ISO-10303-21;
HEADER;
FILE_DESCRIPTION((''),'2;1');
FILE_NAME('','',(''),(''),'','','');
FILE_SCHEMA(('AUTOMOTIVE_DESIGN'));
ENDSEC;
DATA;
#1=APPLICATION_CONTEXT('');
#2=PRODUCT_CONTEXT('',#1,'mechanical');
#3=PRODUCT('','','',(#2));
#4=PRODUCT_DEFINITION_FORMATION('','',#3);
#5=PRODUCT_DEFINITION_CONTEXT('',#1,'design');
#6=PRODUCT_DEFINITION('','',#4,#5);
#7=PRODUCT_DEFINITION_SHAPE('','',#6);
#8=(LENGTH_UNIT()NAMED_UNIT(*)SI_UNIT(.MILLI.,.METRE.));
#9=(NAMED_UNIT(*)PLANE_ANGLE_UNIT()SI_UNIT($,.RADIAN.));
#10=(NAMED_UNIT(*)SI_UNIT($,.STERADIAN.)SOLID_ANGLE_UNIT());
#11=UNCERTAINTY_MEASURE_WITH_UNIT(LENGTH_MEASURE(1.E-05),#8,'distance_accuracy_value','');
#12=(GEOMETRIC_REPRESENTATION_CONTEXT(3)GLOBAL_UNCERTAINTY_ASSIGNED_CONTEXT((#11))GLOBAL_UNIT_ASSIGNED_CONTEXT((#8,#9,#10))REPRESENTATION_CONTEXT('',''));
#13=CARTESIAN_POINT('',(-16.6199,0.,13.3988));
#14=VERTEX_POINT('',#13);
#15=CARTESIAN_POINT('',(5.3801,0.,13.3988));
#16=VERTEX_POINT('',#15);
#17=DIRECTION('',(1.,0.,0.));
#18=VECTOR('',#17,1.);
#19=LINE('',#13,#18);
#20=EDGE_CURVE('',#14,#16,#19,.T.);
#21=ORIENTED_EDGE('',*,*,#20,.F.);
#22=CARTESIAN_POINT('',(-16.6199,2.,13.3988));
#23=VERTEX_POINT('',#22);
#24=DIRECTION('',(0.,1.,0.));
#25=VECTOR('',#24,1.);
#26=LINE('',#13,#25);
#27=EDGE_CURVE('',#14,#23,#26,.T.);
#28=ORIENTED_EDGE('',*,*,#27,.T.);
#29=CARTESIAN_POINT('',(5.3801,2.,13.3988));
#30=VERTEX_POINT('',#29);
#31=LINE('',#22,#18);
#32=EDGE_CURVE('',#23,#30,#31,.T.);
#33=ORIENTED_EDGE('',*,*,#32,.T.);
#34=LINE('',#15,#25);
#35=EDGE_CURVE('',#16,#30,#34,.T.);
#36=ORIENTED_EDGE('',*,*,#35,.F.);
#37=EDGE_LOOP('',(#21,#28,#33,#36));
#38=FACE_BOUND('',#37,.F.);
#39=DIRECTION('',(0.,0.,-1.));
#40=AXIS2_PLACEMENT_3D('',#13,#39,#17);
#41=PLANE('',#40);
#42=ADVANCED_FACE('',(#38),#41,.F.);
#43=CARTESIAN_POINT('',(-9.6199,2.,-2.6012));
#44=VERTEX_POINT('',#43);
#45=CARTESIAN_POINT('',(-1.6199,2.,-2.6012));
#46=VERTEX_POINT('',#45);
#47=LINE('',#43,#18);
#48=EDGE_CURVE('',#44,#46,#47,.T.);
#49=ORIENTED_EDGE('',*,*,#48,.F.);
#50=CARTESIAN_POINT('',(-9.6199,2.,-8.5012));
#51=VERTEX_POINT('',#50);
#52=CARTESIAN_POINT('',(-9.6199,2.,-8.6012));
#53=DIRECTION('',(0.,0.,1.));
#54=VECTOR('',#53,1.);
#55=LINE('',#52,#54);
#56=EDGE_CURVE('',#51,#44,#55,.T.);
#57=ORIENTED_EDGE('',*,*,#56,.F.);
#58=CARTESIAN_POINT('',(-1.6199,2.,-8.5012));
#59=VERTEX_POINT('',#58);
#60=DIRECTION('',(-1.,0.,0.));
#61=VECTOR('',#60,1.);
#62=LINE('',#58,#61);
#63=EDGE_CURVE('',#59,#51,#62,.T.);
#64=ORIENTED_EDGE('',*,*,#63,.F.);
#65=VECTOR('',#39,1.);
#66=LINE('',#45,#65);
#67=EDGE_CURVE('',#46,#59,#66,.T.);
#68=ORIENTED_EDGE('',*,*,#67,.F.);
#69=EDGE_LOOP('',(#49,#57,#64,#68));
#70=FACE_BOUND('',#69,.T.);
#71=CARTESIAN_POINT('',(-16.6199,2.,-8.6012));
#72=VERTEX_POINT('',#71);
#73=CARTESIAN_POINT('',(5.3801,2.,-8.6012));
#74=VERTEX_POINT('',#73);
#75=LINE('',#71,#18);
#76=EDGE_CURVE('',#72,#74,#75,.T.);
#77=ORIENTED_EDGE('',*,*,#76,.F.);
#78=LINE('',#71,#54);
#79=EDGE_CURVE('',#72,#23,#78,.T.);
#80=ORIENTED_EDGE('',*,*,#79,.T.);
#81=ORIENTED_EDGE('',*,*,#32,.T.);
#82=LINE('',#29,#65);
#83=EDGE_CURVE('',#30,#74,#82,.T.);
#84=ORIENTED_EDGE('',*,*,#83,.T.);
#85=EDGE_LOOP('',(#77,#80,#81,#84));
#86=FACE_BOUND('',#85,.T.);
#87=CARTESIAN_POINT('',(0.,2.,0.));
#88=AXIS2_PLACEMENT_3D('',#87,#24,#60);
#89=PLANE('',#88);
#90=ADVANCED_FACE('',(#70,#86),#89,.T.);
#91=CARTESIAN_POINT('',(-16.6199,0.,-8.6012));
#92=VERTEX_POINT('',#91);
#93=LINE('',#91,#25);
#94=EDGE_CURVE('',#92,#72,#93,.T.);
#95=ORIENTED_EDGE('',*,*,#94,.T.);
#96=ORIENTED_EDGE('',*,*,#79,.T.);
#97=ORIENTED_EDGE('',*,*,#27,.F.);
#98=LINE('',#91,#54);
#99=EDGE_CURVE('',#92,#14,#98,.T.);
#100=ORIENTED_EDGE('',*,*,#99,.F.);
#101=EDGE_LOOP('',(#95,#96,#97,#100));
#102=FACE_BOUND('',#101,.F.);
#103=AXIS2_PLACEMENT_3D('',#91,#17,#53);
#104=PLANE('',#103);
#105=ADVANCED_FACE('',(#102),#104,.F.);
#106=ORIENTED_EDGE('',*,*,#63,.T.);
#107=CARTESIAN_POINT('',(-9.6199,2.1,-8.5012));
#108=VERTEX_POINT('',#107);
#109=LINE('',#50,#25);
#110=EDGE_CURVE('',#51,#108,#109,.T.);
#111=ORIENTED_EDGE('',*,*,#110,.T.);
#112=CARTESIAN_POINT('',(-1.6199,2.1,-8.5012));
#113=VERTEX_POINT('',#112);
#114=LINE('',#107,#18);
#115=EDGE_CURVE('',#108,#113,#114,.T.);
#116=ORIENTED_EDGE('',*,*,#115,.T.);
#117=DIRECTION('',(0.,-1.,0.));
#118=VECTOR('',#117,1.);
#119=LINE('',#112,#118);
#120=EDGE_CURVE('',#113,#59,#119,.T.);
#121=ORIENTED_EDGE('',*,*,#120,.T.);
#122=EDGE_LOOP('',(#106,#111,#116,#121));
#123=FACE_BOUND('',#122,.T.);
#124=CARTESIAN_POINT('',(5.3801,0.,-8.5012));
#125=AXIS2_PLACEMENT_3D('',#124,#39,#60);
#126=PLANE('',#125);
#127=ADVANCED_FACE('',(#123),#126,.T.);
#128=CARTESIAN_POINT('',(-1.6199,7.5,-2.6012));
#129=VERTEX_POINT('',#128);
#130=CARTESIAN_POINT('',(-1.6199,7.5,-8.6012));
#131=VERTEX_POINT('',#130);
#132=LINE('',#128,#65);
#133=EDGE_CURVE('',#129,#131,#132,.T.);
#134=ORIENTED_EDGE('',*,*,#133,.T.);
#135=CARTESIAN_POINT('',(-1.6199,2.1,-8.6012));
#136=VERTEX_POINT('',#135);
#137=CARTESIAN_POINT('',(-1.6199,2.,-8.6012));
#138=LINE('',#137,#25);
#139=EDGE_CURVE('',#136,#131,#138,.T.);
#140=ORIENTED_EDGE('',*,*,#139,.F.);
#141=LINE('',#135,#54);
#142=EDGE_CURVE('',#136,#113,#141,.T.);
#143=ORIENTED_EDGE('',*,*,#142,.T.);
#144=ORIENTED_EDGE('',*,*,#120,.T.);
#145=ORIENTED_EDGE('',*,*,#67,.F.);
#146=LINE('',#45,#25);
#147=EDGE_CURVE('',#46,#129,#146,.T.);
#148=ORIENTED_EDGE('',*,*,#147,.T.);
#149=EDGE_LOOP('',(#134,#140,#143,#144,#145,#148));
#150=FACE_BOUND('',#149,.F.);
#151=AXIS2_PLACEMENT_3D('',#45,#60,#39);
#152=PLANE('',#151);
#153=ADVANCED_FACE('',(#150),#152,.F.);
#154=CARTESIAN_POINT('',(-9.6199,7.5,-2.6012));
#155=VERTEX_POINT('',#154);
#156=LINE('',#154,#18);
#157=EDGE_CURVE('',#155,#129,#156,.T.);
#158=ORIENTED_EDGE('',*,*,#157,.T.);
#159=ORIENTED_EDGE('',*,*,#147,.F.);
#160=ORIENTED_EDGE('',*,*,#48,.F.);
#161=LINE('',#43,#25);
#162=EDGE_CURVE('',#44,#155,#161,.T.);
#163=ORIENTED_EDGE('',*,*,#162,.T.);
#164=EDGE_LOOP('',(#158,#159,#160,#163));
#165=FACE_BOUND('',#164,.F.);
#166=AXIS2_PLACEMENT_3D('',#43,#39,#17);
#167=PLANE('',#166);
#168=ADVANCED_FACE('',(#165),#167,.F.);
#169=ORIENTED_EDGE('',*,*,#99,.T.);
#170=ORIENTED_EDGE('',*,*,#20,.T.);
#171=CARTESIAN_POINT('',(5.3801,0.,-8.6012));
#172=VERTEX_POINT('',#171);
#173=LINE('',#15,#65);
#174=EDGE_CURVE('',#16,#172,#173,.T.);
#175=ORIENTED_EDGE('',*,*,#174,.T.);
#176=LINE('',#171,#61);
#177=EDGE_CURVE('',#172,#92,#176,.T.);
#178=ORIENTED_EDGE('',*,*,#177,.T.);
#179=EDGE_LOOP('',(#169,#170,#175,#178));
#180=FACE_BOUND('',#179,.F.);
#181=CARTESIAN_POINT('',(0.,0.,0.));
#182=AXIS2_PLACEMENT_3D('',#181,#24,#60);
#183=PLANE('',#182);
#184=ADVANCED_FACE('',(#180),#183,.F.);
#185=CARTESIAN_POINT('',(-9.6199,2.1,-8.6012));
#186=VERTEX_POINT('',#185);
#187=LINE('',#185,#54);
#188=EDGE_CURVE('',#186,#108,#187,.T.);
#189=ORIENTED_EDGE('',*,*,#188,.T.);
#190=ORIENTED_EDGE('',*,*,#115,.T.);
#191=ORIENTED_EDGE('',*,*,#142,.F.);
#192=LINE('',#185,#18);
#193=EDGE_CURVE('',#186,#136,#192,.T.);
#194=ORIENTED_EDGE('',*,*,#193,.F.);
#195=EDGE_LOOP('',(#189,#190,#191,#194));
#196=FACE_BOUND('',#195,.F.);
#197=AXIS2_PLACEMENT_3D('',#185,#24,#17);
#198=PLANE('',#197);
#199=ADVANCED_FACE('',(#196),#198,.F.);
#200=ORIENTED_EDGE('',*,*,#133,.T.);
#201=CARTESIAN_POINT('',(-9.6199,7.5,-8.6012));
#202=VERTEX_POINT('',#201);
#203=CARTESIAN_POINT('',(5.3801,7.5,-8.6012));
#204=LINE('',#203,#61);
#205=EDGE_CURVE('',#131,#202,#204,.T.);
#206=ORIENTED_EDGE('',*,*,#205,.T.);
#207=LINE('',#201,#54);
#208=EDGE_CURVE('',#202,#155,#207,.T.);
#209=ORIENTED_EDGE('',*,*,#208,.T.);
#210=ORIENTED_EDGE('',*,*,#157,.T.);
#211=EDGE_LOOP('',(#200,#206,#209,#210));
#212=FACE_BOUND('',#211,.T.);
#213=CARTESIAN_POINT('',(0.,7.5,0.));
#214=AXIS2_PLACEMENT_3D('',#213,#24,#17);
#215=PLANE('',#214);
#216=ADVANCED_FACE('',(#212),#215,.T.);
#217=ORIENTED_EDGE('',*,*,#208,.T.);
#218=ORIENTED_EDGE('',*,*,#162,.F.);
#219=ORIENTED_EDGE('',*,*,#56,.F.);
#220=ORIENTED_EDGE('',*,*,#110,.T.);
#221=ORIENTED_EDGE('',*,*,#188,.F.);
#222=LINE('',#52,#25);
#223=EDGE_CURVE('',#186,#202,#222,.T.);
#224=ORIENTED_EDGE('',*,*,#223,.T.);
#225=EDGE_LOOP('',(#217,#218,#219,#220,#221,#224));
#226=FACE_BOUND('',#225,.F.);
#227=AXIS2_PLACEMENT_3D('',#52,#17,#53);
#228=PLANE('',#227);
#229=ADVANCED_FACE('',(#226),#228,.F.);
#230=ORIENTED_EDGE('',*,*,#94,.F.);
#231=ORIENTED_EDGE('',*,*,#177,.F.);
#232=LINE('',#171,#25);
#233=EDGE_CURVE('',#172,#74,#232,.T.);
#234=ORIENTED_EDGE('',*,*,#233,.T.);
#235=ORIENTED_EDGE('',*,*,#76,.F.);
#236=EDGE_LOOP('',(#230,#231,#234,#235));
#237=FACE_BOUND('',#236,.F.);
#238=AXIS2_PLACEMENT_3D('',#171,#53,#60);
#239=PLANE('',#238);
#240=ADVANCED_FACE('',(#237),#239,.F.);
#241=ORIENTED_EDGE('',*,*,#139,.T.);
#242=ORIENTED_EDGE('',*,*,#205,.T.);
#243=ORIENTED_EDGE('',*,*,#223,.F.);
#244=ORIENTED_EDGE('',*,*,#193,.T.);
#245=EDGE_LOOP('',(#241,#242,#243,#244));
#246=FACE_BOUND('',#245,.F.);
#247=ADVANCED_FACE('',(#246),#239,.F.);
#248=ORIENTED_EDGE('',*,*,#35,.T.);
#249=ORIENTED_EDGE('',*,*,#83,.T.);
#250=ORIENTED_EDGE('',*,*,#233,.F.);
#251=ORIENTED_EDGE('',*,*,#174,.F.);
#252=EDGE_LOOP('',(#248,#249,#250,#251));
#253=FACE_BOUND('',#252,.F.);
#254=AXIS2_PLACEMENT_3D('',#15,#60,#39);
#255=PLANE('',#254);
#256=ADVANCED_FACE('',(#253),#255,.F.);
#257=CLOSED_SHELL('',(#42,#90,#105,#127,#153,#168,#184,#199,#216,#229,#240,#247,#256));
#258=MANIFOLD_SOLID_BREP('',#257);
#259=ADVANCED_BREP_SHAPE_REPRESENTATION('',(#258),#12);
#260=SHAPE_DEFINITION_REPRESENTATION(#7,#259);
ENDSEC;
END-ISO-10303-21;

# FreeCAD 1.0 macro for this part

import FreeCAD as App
import Part
import Sketcher
from FreeCAD import Vector

doc = App.newDocument("Part")
body = doc.addObject("PartDesign::Body", "Body")

# Sketch on XZ plane
sketch1 = body.newObject("Sketcher::SketchObject", "Sketch")
sketch1.AttachmentSupport = (doc.getObject("XZ_Plane"), [""])
sketch1.MapMode = "FlatFace"
sketch1.addGeometry([
    Part.LineSegment(Vector(-17, -9, 0), Vector(-17, 13, 0)),
    Part.LineSegment(Vector(-17, 13, 0), Vector(5, 13, 0)),
    Part.LineSegment(Vector(5, 13, 0), Vector(5, -9, 0)),
    Part.LineSegment(Vector(5, -9, 0), Vector(-17, -9, 0)),
], False)
sketch1.addConstraint([
    Sketcher.Constraint("Coincident", 0, 2, 1, 1),
    Sketcher.Constraint("Coincident", 1, 2, 2, 1),
    Sketcher.Constraint("Coincident", 2, 2, 3, 1),
    Sketcher.Constraint("Coincident", 3, 2, 0, 1),
    Sketcher.Constraint("Vertical", 0),
    Sketcher.Constraint("Horizontal", 1),
    Sketcher.Constraint("Vertical", 2),
    Sketcher.Constraint("Horizontal", 3),
    Sketcher.Constraint("Equal", 3, 0),
    Sketcher.Constraint("DistanceX", 1, 1, 1, 2, 22.0),
    Sketcher.Constraint("DistanceX", 0, 2, -1, 1, 16.62),
    Sketcher.Constraint("DistanceY", -1, 1, 0, 2, 13.3988),
])
pad1 = body.newObject("PartDesign::Pad", "Pad")
pad1.Profile = sketch1
pad1.Length = 2
pad1.Reversed = True

# Sketch on XZ plane
sketch2 = body.newObject("Sketcher::SketchObject", "Sketch001")
sketch2.AttachmentSupport = (doc.getObject("XZ_Plane"), [""])
sketch2.MapMode = "FlatFace"
sketch2.AttachmentOffset = App.Placement(Vector(0, 0, -2), App.Rotation())
sketch2.addGeometry([
    Part.LineSegment(Vector(-2, -3, 0), Vector(-2, -9, 0)),
    Part.LineSegment(Vector(-2, -9, 0), Vector(-10, -9, 0)),
    Part.LineSegment(Vector(-10, -9, 0), Vector(-10, -3, 0)),
    Part.LineSegment(Vector(-10, -3, 0), Vector(-2, -3, 0)),
], False)
sketch2.addConstraint([
    Sketcher.Constraint("Coincident", 0, 2, 1, 1),
    Sketcher.Constraint("Coincident", 1, 2, 2, 1),
    Sketcher.Constraint("Coincident", 2, 2, 3, 1),
    Sketcher.Constraint("Coincident", 3, 2, 0, 1),
    Sketcher.Constraint("Vertical", 0),
    Sketcher.Constraint("Horizontal", 1),
    Sketcher.Constraint("Vertical", 2),
    Sketcher.Constraint("Horizontal", 3),
    Sketcher.Constraint("DistanceX", 1, 2, 1, 1, 8.0),
    Sketcher.Constraint("DistanceY", 0, 2, 0, 1, 6.0),
    Sketcher.Constraint("DistanceX", 0, 2, -1, 1, 1.62),
    Sketcher.Constraint("DistanceY", 0, 2, -1, 1, 8.6012),
])
pad2 = body.newObject("PartDesign::Pad", "Pad001")
pad2.Profile = sketch2
pad2.Length = 5.5
pad2.Reversed = True

# Sketch on XY plane
sketch3 = body.newObject("Sketcher::SketchObject", "Sketch002")
sketch3.AttachmentSupport = (doc.getObject("XY_Plane"), [""])
sketch3.MapMode = "FlatFace"
sketch3.AttachmentOffset = App.Placement(Vector(0, 0, -8.6012), App.Rotation())
sketch3.addGeometry([
    Part.LineSegment(Vector(-1.62, 2.1, 0), Vector(-1.62, 2, 0)),
    Part.LineSegment(Vector(-1.62, 2, 0), Vector(-9.62, 2, 0)),
    Part.LineSegment(Vector(-9.62, 2, 0), Vector(-9.62, 2.1, 0)),
    Part.LineSegment(Vector(-9.62, 2.1, 0), Vector(-1.62, 2.1, 0)),
], False)
sketch3.addConstraint([
    Sketcher.Constraint("Coincident", 0, 2, 1, 1),
    Sketcher.Constraint("Coincident", 1, 2, 2, 1),
    Sketcher.Constraint("Coincident", 2, 2, 3, 1),
    Sketcher.Constraint("Coincident", 3, 2, 0, 1),
    Sketcher.Constraint("Vertical", 0),
    Sketcher.Constraint("Horizontal", 1),
    Sketcher.Constraint("Vertical", 2),
    Sketcher.Constraint("Horizontal", 3),
    Sketcher.Constraint("DistanceY", 0, 2, 0, 1, 0.1),
    Sketcher.Constraint("DistanceX", 1, 2, 1, 1, 8.0),
    Sketcher.Constraint("DistanceY", -1, 1, 0, 2, 2.0),
    Sketcher.Constraint("DistanceX", 0, 2, -1, 1, 1.62),
])
pocket1 = body.newObject("PartDesign::Pocket", "Pocket")
pocket1.Profile = sketch3
pocket1.Length = 0.1
pocket1.Reversed = True

doc.recompute()
